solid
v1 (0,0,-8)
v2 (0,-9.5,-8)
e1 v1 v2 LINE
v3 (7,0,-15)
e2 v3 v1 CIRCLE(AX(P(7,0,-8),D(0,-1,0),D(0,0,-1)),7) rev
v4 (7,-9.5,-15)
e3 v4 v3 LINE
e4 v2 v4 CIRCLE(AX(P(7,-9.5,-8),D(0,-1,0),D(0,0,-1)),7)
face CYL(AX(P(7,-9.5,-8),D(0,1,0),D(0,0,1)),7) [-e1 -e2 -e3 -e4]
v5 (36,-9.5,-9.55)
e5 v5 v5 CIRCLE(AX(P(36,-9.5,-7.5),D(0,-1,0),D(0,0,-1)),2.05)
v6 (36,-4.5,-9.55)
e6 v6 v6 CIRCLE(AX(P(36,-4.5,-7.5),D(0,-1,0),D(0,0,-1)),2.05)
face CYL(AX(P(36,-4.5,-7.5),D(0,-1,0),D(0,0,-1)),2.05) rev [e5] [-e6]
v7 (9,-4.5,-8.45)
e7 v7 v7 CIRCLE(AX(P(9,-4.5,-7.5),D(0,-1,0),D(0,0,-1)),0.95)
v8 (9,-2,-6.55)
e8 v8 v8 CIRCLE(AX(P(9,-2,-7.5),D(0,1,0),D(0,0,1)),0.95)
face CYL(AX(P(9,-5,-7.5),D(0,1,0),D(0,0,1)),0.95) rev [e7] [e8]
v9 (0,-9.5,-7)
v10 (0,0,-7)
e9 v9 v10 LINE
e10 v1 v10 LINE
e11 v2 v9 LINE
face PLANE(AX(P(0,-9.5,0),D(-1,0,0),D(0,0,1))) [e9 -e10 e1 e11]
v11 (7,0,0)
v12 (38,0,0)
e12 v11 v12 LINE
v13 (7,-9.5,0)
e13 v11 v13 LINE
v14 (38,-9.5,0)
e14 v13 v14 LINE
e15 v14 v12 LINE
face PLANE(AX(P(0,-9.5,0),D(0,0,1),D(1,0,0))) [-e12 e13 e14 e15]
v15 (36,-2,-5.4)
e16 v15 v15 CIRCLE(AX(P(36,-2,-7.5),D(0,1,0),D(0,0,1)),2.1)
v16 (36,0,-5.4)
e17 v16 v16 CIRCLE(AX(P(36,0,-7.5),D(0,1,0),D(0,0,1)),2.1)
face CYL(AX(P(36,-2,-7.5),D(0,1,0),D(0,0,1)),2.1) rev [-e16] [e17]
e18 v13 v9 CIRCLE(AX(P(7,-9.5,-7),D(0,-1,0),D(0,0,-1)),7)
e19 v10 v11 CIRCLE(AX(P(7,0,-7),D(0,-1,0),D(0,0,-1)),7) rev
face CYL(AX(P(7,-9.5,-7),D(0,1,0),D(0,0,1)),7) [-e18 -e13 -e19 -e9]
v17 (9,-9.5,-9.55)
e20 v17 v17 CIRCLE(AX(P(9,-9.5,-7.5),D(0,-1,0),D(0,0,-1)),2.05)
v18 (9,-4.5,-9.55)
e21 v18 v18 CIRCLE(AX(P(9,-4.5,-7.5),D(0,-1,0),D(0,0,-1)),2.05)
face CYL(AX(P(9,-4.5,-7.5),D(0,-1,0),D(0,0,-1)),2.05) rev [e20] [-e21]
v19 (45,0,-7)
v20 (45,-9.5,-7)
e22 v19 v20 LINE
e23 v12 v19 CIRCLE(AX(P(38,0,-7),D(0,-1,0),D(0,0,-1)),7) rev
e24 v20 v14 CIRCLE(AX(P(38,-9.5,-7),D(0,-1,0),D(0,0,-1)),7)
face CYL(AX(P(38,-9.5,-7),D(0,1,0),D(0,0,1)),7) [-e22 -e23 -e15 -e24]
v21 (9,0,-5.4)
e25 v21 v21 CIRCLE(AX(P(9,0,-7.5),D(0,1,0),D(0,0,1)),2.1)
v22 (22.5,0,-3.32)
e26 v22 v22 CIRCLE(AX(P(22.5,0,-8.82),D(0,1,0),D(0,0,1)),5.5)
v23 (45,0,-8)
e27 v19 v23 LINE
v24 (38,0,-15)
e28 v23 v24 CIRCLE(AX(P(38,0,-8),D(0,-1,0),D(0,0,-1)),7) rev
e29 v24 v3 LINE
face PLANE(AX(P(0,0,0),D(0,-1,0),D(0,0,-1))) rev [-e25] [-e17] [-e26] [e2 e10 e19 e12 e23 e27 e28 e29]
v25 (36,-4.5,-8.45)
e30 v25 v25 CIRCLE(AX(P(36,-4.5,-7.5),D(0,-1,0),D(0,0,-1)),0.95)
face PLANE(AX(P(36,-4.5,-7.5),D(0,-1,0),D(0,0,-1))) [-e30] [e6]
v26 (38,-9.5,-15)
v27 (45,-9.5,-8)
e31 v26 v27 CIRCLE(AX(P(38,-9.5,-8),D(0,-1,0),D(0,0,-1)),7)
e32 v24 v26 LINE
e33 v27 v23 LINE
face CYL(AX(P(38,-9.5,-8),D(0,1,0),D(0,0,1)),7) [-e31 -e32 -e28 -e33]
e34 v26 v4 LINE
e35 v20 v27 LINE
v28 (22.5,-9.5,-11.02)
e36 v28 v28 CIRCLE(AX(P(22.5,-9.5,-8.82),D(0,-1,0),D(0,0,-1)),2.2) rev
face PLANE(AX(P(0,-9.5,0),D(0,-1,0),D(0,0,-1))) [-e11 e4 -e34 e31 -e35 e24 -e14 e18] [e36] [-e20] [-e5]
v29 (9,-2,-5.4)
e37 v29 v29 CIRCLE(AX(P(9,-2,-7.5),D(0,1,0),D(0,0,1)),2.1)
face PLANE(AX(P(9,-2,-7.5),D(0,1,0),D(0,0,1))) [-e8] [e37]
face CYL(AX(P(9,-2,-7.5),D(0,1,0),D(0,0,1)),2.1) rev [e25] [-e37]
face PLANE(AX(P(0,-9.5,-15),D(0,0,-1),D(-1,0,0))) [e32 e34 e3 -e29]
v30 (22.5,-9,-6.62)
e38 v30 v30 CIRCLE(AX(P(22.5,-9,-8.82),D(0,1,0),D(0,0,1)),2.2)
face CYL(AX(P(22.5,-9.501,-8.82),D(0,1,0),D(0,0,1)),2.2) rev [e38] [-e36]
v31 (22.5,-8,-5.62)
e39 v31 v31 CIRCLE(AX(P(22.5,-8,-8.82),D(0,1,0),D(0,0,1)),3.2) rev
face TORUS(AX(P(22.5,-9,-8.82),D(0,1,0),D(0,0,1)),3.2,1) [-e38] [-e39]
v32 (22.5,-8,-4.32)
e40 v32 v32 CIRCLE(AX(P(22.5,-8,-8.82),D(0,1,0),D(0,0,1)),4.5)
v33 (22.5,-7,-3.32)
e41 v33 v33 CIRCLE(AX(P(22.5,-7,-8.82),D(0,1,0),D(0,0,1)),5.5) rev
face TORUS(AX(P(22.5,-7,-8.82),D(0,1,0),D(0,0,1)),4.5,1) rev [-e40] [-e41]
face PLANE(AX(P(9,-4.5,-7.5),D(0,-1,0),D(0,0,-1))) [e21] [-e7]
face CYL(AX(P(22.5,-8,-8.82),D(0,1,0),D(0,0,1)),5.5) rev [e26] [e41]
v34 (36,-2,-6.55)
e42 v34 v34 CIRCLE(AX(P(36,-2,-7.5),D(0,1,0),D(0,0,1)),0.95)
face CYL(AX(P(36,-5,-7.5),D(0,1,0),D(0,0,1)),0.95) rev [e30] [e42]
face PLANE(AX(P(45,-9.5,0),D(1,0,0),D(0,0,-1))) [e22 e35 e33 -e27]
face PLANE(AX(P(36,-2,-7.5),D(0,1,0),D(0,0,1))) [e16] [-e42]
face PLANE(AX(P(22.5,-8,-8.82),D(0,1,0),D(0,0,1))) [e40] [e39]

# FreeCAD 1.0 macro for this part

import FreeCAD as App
import Part
import Sketcher
Q = App.Units.Quantity


def edges_at(feature, points):
    """Names of the edges that pass closest to the given points."""
    edges = feature.Shape.Edges
    near = lambda p: min(range(len(edges)), key=lambda i: edges[i].distToShape(Part.Vertex(*p))[0])
    return sorted({f"Edge{near(p) + 1}" for p in points})

doc = App.newDocument("Part")
body = doc.addObject("PartDesign::Body", "Body")

# Sketch on XZ plane
sketch1 = doc.addObject("Sketcher::SketchObject", "Sketch")
body.addObject(sketch1)
sketch1.AttachmentSupport = (doc.XZ_Plane, [""])
sketch1.MapMode = "FlatFace"
sketch1.addGeometry([
    Part.LineSegment(App.Vector(0, -15, 0), App.Vector(0, 0, 0)),
    Part.LineSegment(App.Vector(0, 0, 0), App.Vector(45, 0, 0)),
    Part.LineSegment(App.Vector(45, 0, 0), App.Vector(45, -15, 0)),
    Part.LineSegment(App.Vector(45, -15, 0), App.Vector(0, -15, 0)),
], False)
sketch1.addConstraint([
    Sketcher.Constraint("Coincident", 0, 2, 1, 1),
    Sketcher.Constraint("Coincident", 1, 2, 2, 1),
    Sketcher.Constraint("Coincident", 2, 2, 3, 1),
    Sketcher.Constraint("Coincident", 3, 2, 0, 1),
    Sketcher.Constraint("Vertical", 0),
    Sketcher.Constraint("Horizontal", 1),
    Sketcher.Constraint("Vertical", 2),
    Sketcher.Constraint("Horizontal", 3),
    Sketcher.Constraint("Coincident", 0, 2, -1, 1),
    Sketcher.Constraint("DistanceX", 1, 1, 1, 2, Q("45 mm")),
    Sketcher.Constraint("DistanceY", 0, 1, 0, 2, Q("15 mm")),
])
pad1 = doc.addObject("PartDesign::Pad", "Pad")
body.addObject(pad1)
pad1.Profile = sketch1
pad1.Length = 9.5

# Sketch on XZ plane
sketch2 = doc.addObject("Sketcher::SketchObject", "Sketch001")
body.addObject(sketch2)
sketch2.AttachmentSupport = (doc.XZ_Plane, [""])
sketch2.MapMode = "FlatFace"
sketch2.addGeometry(Part.Circle(App.Vector(22, -9, 0), App.Vector(0, 0, 1), 6), False)
sketch2.addConstraint([
    Sketcher.Constraint("Diameter", 0, Q("11 mm")),
    Sketcher.Constraint("DistanceX", -1, 1, 0, 3, Q("22.5 mm")),
    Sketcher.Constraint("DistanceY", 0, 3, -1, 1, Q("8.82 mm")),
])
pocket1 = doc.addObject("PartDesign::Pocket", "Pocket")
body.addObject(pocket1)
pocket1.Profile = sketch2
pocket1.Length = 8
pocket1.Reversed = True

# Sketch on XZ plane
sketch3 = doc.addObject("Sketcher::SketchObject", "Sketch002")
body.addObject(sketch3)
sketch3.AttachmentSupport = (doc.XZ_Plane, [""])
sketch3.MapMode = "FlatFace"
sketch3.AttachmentOffset = App.Placement(App.Vector(0, 0, 8), App.Rotation())
sketch3.addGeometry(Part.Circle(App.Vector(22.5, -8.8, 0), App.Vector(0, 0, 1), 2.2), False)
sketch3.addConstraint([
    Sketcher.Constraint("Diameter", 0, Q("4.4 mm")),
    Sketcher.Constraint("DistanceX", -1, 1, 0, 3, Q("22.5 mm")),
    Sketcher.Constraint("DistanceY", 0, 3, -1, 1, Q("8.82 mm")),
])
pocket2 = doc.addObject("PartDesign::Pocket", "Pocket001")
body.addObject(pocket2)
pocket2.Profile = sketch3
pocket2.Type = "UpToFirst"
pocket2.Reversed = True

# Sketch on XZ plane
sketch4 = doc.addObject("Sketcher::SketchObject", "Sketch003")
body.addObject(sketch4)
sketch4.AttachmentSupport = (doc.XZ_Plane, [""])
sketch4.MapMode = "FlatFace"
sketch4.addGeometry([
    Part.Circle(App.Vector(9, -7.5, 0), App.Vector(0, 0, 1), 2.1),
    Part.Circle(App.Vector(36, -7.5, 0), App.Vector(0, 0, 1), 2.1),
], False)
sketch4.addConstraint([
    Sketcher.Constraint("Equal", 0, 1),
    Sketcher.Constraint("Horizontal", 0, 3, 1, 3),
    Sketcher.Constraint("Diameter", 0, Q("4.2 mm")),
    Sketcher.Constraint("DistanceX", -1, 1, 0, 3, Q("9 mm")),
    Sketcher.Constraint("DistanceX", -1, 1, 1, 3, Q("36 mm")),
    Sketcher.Constraint("DistanceY", 0, 3, -1, 1, Q("7.5 mm")),
])
pocket3 = doc.addObject("PartDesign::Pocket", "Pocket002")
body.addObject(pocket3)
pocket3.Profile = sketch4
pocket3.Length = 2
pocket3.Reversed = True
doc.recompute()

fillet = doc.addObject("PartDesign::Fillet", "Fillet")
body.addObject(fillet)
fillet.Base = (pocket3, edges_at(pocket3, [
    (0, -4.75, -15),
    (45, -4.75, -15),
    (45, -4.75, 0),
    (0, -4.75, 0),
]))
fillet.Radius = 7

# Sketch on XZ plane
sketch5 = doc.addObject("Sketcher::SketchObject", "Sketch004")
body.addObject(sketch5)
sketch5.AttachmentSupport = (doc.XZ_Plane, [""])
sketch5.MapMode = "FlatFace"
sketch5.AttachmentOffset = App.Placement(App.Vector(0, 0, 9.5), App.Rotation())
sketch5.addGeometry([
    Part.Circle(App.Vector(36, -7.5, 0), App.Vector(0, 0, 1), 2),
    Part.Circle(App.Vector(9, -7.5, 0), App.Vector(0, 0, 1), 2),
], False)
sketch5.addConstraint([
    Sketcher.Constraint("Equal", 0, 1),
    Sketcher.Constraint("Horizontal", 0, 3, 1, 3),
    Sketcher.Constraint("Diameter", 0, Q("4.1 mm")),
    Sketcher.Constraint("DistanceX", -1, 1, 0, 3, Q("36 mm")),
    Sketcher.Constraint("DistanceX", -1, 1, 1, 3, Q("9 mm")),
    Sketcher.Constraint("DistanceY", 0, 3, -1, 1, Q("7.5 mm")),
])
pocket4 = doc.addObject("PartDesign::Pocket", "Pocket003")
body.addObject(pocket4)
pocket4.Profile = sketch5
pocket4.Length = 5

# Sketch on XZ plane
sketch6 = doc.addObject("Sketcher::SketchObject", "Sketch005")
body.addObject(sketch6)
sketch6.AttachmentSupport = (doc.XZ_Plane, [""])
sketch6.MapMode = "FlatFace"
sketch6.AttachmentOffset = App.Placement(App.Vector(0, 0, 2), App.Rotation())
sketch6.addGeometry([
    Part.Circle(App.Vector(9, -7.5, 0), App.Vector(0, 0, 1), 0.9),
    Part.Circle(App.Vector(36, -7.5, 0), App.Vector(0, 0, 1), 0.9),
], False)
sketch6.addConstraint([
    Sketcher.Constraint("Equal", 0, 1),
    Sketcher.Constraint("Horizontal", 0, 3, 1, 3),
    Sketcher.Constraint("Diameter", 0, Q("1.9 mm")),
    Sketcher.Constraint("DistanceX", -1, 1, 0, 3, Q("9 mm")),
    Sketcher.Constraint("DistanceX", -1, 1, 1, 3, Q("36 mm")),
    Sketcher.Constraint("DistanceY", 0, 3, -1, 1, Q("7.5 mm")),
])
pocket5 = doc.addObject("PartDesign::Pocket", "Pocket004")
body.addObject(pocket5)
pocket5.Profile = sketch6
pocket5.Length = 3
pocket5.Reversed = True
doc.recompute()

fillet2 = doc.addObject("PartDesign::Fillet", "Fillet001")
body.addObject(fillet2)
fillet2.Base = (pocket5, edges_at(pocket5, [(22.5, -8, -14.32), (22.5, -8, -11.02)]))
fillet2.Radius = 1

doc.recompute()
